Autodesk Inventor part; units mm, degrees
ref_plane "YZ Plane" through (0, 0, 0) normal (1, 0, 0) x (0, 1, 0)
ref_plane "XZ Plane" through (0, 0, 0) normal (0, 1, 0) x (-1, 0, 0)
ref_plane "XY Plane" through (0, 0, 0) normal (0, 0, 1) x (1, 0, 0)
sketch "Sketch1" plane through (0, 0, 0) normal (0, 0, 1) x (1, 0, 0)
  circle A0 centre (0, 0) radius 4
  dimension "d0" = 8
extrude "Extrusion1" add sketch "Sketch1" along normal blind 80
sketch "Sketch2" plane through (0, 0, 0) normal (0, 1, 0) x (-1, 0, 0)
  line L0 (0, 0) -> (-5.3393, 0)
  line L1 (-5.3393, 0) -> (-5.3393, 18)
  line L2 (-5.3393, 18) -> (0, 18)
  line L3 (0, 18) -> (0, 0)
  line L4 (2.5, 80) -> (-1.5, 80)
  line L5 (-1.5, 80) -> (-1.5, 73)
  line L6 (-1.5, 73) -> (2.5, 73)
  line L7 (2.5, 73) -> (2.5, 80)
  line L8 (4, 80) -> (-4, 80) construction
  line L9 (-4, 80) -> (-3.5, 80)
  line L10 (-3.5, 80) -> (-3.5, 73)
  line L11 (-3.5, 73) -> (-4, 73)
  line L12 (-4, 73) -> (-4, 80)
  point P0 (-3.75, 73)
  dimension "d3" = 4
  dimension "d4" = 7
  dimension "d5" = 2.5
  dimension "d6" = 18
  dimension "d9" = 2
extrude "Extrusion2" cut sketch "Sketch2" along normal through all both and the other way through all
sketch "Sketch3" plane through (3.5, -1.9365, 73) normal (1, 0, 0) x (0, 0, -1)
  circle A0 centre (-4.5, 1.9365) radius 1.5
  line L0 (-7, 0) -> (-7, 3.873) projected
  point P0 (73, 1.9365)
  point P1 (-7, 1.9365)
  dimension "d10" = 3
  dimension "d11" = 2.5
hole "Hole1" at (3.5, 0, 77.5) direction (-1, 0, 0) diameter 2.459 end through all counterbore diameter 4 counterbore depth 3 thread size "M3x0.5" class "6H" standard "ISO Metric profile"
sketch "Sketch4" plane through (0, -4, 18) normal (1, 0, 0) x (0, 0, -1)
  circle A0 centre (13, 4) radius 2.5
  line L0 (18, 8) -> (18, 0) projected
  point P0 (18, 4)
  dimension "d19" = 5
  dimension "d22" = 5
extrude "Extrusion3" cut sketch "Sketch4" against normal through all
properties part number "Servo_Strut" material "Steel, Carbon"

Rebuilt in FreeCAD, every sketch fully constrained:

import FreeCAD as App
import Part
import Sketcher

V = App.Vector


def add_polygon(sketch, points):
    """Adds a closed chain of lines whose ends are joined by coincident constraints."""
    first, n = sketch.GeometryCount, len(points)
    for a, b in zip(points, points[1:] + points[:1]):
        sketch.addGeometry(Part.LineSegment(App.Vector(*a, 0), App.Vector(*b, 0)), False)
    for i in range(n):
        sketch.addConstraint(Sketcher.Constraint("Coincident", first + i, 2, first + (i + 1) % n, 1))

doc = App.newDocument("Part")
body = doc.addObject("PartDesign::Body", "Body")

# Sketch on XY plane
sketch1 = body.newObject("Sketcher::SketchObject", "Sketch")
sketch1.AttachmentSupport = (doc.getObject("XY_Plane"), [""])
sketch1.MapMode = "FlatFace"
sketch1.addGeometry(Part.Circle(V(0, 0, 0), V(0, 0, 1), 4), False)
sketch1.addConstraint(Sketcher.Constraint("Coincident", 0, 3, -1, 1))
sketch1.addConstraint(Sketcher.Constraint("Diameter", 0, 8.0))
pad1 = body.newObject("PartDesign::Pad", "Pad")
pad1.Profile = sketch1
pad1.Length = 80

# Sketch on XZ plane
sketch2 = body.newObject("Sketcher::SketchObject", "Sketch001")
sketch2.AttachmentSupport = (doc.getObject("XZ_Plane"), [""])
sketch2.MapMode = "FlatFace"
add_polygon(sketch2, [(5.3, 0), (0, 0), (0, 18), (5.3, 18)])  # lines 0-3
add_polygon(sketch2, [(-2.5, 73), (-2.5, 80), (1.5, 80), (1.5, 73)])  # lines 4-7
add_polygon(sketch2, [(3.5, 80), (4, 80), (4, 73), (3.5, 73)])  # lines 8-11
sketch2.addConstraint(Sketcher.Constraint("Horizontal", 0))
sketch2.addConstraint(Sketcher.Constraint("Vertical", 1))
sketch2.addConstraint(Sketcher.Constraint("Horizontal", 2))
sketch2.addConstraint(Sketcher.Constraint("Vertical", 3))
sketch2.addConstraint(Sketcher.Constraint("Vertical", 4))
sketch2.addConstraint(Sketcher.Constraint("Horizontal", 5))
sketch2.addConstraint(Sketcher.Constraint("Vertical", 6))
sketch2.addConstraint(Sketcher.Constraint("Horizontal", 7))
sketch2.addConstraint(Sketcher.Constraint("Horizontal", 8))
sketch2.addConstraint(Sketcher.Constraint("Vertical", 9))
sketch2.addConstraint(Sketcher.Constraint("Horizontal", 10))
sketch2.addConstraint(Sketcher.Constraint("Vertical", 11))
sketch2.addConstraint(Sketcher.Constraint("Coincident", 0, 2, -1, 1))
sketch2.addConstraint(Sketcher.Constraint("Horizontal", 5, 2, 8, 2))
sketch2.addConstraint(Sketcher.Constraint("Horizontal", 7, 2, 9, 2))
sketch2.addConstraint(Sketcher.Constraint("DistanceX", 5, 1, 5, 2, 4.0))
sketch2.addConstraint(Sketcher.Constraint("DistanceY", 1, 1, 1, 2, 18.0))
sketch2.addConstraint(Sketcher.Constraint("DistanceY", 4, 1, 4, 2, 7.0))
sketch2.addConstraint(Sketcher.Constraint("DistanceX", -1, 1, 8, 2, 4.0))
sketch2.addConstraint(Sketcher.Constraint("DistanceX", 6, 2, 10, 2, 2.0))
sketch2.addConstraint(Sketcher.Constraint("DistanceX", 4, 2, -1, 1, 2.5))
sketch2.addConstraint(Sketcher.Constraint("DistanceY", -1, 1, 4, 2, 80.0))
sketch2.addConstraint(Sketcher.Constraint("DistanceX", 0, 2, 0, 1, 5.3393))
pocket1 = body.newObject("PartDesign::Pocket", "Pocket")
pocket1.Profile = sketch2
pocket1.Type = "ThroughAll"
pocket1.Midplane = True

# Sketch on YZ plane
sketch3 = body.newObject("Sketcher::SketchObject", "Sketch002")
sketch3.AttachmentSupport = (doc.getObject("YZ_Plane"), [""])
sketch3.MapMode = "FlatFace"
sketch3.AttachmentOffset = App.Placement(V(0, 0, 3.5), App.Rotation())
sketch3.addGeometry(Part.Circle(V(0, 77.5, 0), V(0, 0, 1), 1.2), False)
sketch3.addConstraint(Sketcher.Constraint("PointOnObject", 0, 3, -2))
sketch3.addConstraint(Sketcher.Constraint("Diameter", 0, 2.459))
sketch3.addConstraint(Sketcher.Constraint("DistanceY", -1, 1, 0, 3, 77.5))
doc.recompute()
hole = body.newObject("PartDesign::Hole", "Hole")
hole.Profile = sketch3
hole.ThreadType = "None"
hole.Diameter = 2.459
hole.DepthType = "ThroughAll"
hole.HoleCutType = "Counterbore"
hole.HoleCutDiameter = 4
hole.HoleCutDepth = 3

# Sketch on YZ plane
sketch4 = body.newObject("Sketcher::SketchObject", "Sketch003")
sketch4.AttachmentSupport = (doc.getObject("YZ_Plane"), [""])
sketch4.MapMode = "FlatFace"
sketch4.addGeometry(Part.Circle(V(0, 5, 0), V(0, 0, 1), 2.5), False)
sketch4.addConstraint(Sketcher.Constraint("PointOnObject", 0, 3, -2))
sketch4.addConstraint(Sketcher.Constraint("Diameter", 0, 5.0))
sketch4.addConstraint(Sketcher.Constraint("DistanceY", -1, 1, 0, 3, 5.0))
pocket2 = body.newObject("PartDesign::Pocket", "Pocket001")
pocket2.Profile = sketch4
pocket2.Type = "ThroughAll"

doc.recompute()
